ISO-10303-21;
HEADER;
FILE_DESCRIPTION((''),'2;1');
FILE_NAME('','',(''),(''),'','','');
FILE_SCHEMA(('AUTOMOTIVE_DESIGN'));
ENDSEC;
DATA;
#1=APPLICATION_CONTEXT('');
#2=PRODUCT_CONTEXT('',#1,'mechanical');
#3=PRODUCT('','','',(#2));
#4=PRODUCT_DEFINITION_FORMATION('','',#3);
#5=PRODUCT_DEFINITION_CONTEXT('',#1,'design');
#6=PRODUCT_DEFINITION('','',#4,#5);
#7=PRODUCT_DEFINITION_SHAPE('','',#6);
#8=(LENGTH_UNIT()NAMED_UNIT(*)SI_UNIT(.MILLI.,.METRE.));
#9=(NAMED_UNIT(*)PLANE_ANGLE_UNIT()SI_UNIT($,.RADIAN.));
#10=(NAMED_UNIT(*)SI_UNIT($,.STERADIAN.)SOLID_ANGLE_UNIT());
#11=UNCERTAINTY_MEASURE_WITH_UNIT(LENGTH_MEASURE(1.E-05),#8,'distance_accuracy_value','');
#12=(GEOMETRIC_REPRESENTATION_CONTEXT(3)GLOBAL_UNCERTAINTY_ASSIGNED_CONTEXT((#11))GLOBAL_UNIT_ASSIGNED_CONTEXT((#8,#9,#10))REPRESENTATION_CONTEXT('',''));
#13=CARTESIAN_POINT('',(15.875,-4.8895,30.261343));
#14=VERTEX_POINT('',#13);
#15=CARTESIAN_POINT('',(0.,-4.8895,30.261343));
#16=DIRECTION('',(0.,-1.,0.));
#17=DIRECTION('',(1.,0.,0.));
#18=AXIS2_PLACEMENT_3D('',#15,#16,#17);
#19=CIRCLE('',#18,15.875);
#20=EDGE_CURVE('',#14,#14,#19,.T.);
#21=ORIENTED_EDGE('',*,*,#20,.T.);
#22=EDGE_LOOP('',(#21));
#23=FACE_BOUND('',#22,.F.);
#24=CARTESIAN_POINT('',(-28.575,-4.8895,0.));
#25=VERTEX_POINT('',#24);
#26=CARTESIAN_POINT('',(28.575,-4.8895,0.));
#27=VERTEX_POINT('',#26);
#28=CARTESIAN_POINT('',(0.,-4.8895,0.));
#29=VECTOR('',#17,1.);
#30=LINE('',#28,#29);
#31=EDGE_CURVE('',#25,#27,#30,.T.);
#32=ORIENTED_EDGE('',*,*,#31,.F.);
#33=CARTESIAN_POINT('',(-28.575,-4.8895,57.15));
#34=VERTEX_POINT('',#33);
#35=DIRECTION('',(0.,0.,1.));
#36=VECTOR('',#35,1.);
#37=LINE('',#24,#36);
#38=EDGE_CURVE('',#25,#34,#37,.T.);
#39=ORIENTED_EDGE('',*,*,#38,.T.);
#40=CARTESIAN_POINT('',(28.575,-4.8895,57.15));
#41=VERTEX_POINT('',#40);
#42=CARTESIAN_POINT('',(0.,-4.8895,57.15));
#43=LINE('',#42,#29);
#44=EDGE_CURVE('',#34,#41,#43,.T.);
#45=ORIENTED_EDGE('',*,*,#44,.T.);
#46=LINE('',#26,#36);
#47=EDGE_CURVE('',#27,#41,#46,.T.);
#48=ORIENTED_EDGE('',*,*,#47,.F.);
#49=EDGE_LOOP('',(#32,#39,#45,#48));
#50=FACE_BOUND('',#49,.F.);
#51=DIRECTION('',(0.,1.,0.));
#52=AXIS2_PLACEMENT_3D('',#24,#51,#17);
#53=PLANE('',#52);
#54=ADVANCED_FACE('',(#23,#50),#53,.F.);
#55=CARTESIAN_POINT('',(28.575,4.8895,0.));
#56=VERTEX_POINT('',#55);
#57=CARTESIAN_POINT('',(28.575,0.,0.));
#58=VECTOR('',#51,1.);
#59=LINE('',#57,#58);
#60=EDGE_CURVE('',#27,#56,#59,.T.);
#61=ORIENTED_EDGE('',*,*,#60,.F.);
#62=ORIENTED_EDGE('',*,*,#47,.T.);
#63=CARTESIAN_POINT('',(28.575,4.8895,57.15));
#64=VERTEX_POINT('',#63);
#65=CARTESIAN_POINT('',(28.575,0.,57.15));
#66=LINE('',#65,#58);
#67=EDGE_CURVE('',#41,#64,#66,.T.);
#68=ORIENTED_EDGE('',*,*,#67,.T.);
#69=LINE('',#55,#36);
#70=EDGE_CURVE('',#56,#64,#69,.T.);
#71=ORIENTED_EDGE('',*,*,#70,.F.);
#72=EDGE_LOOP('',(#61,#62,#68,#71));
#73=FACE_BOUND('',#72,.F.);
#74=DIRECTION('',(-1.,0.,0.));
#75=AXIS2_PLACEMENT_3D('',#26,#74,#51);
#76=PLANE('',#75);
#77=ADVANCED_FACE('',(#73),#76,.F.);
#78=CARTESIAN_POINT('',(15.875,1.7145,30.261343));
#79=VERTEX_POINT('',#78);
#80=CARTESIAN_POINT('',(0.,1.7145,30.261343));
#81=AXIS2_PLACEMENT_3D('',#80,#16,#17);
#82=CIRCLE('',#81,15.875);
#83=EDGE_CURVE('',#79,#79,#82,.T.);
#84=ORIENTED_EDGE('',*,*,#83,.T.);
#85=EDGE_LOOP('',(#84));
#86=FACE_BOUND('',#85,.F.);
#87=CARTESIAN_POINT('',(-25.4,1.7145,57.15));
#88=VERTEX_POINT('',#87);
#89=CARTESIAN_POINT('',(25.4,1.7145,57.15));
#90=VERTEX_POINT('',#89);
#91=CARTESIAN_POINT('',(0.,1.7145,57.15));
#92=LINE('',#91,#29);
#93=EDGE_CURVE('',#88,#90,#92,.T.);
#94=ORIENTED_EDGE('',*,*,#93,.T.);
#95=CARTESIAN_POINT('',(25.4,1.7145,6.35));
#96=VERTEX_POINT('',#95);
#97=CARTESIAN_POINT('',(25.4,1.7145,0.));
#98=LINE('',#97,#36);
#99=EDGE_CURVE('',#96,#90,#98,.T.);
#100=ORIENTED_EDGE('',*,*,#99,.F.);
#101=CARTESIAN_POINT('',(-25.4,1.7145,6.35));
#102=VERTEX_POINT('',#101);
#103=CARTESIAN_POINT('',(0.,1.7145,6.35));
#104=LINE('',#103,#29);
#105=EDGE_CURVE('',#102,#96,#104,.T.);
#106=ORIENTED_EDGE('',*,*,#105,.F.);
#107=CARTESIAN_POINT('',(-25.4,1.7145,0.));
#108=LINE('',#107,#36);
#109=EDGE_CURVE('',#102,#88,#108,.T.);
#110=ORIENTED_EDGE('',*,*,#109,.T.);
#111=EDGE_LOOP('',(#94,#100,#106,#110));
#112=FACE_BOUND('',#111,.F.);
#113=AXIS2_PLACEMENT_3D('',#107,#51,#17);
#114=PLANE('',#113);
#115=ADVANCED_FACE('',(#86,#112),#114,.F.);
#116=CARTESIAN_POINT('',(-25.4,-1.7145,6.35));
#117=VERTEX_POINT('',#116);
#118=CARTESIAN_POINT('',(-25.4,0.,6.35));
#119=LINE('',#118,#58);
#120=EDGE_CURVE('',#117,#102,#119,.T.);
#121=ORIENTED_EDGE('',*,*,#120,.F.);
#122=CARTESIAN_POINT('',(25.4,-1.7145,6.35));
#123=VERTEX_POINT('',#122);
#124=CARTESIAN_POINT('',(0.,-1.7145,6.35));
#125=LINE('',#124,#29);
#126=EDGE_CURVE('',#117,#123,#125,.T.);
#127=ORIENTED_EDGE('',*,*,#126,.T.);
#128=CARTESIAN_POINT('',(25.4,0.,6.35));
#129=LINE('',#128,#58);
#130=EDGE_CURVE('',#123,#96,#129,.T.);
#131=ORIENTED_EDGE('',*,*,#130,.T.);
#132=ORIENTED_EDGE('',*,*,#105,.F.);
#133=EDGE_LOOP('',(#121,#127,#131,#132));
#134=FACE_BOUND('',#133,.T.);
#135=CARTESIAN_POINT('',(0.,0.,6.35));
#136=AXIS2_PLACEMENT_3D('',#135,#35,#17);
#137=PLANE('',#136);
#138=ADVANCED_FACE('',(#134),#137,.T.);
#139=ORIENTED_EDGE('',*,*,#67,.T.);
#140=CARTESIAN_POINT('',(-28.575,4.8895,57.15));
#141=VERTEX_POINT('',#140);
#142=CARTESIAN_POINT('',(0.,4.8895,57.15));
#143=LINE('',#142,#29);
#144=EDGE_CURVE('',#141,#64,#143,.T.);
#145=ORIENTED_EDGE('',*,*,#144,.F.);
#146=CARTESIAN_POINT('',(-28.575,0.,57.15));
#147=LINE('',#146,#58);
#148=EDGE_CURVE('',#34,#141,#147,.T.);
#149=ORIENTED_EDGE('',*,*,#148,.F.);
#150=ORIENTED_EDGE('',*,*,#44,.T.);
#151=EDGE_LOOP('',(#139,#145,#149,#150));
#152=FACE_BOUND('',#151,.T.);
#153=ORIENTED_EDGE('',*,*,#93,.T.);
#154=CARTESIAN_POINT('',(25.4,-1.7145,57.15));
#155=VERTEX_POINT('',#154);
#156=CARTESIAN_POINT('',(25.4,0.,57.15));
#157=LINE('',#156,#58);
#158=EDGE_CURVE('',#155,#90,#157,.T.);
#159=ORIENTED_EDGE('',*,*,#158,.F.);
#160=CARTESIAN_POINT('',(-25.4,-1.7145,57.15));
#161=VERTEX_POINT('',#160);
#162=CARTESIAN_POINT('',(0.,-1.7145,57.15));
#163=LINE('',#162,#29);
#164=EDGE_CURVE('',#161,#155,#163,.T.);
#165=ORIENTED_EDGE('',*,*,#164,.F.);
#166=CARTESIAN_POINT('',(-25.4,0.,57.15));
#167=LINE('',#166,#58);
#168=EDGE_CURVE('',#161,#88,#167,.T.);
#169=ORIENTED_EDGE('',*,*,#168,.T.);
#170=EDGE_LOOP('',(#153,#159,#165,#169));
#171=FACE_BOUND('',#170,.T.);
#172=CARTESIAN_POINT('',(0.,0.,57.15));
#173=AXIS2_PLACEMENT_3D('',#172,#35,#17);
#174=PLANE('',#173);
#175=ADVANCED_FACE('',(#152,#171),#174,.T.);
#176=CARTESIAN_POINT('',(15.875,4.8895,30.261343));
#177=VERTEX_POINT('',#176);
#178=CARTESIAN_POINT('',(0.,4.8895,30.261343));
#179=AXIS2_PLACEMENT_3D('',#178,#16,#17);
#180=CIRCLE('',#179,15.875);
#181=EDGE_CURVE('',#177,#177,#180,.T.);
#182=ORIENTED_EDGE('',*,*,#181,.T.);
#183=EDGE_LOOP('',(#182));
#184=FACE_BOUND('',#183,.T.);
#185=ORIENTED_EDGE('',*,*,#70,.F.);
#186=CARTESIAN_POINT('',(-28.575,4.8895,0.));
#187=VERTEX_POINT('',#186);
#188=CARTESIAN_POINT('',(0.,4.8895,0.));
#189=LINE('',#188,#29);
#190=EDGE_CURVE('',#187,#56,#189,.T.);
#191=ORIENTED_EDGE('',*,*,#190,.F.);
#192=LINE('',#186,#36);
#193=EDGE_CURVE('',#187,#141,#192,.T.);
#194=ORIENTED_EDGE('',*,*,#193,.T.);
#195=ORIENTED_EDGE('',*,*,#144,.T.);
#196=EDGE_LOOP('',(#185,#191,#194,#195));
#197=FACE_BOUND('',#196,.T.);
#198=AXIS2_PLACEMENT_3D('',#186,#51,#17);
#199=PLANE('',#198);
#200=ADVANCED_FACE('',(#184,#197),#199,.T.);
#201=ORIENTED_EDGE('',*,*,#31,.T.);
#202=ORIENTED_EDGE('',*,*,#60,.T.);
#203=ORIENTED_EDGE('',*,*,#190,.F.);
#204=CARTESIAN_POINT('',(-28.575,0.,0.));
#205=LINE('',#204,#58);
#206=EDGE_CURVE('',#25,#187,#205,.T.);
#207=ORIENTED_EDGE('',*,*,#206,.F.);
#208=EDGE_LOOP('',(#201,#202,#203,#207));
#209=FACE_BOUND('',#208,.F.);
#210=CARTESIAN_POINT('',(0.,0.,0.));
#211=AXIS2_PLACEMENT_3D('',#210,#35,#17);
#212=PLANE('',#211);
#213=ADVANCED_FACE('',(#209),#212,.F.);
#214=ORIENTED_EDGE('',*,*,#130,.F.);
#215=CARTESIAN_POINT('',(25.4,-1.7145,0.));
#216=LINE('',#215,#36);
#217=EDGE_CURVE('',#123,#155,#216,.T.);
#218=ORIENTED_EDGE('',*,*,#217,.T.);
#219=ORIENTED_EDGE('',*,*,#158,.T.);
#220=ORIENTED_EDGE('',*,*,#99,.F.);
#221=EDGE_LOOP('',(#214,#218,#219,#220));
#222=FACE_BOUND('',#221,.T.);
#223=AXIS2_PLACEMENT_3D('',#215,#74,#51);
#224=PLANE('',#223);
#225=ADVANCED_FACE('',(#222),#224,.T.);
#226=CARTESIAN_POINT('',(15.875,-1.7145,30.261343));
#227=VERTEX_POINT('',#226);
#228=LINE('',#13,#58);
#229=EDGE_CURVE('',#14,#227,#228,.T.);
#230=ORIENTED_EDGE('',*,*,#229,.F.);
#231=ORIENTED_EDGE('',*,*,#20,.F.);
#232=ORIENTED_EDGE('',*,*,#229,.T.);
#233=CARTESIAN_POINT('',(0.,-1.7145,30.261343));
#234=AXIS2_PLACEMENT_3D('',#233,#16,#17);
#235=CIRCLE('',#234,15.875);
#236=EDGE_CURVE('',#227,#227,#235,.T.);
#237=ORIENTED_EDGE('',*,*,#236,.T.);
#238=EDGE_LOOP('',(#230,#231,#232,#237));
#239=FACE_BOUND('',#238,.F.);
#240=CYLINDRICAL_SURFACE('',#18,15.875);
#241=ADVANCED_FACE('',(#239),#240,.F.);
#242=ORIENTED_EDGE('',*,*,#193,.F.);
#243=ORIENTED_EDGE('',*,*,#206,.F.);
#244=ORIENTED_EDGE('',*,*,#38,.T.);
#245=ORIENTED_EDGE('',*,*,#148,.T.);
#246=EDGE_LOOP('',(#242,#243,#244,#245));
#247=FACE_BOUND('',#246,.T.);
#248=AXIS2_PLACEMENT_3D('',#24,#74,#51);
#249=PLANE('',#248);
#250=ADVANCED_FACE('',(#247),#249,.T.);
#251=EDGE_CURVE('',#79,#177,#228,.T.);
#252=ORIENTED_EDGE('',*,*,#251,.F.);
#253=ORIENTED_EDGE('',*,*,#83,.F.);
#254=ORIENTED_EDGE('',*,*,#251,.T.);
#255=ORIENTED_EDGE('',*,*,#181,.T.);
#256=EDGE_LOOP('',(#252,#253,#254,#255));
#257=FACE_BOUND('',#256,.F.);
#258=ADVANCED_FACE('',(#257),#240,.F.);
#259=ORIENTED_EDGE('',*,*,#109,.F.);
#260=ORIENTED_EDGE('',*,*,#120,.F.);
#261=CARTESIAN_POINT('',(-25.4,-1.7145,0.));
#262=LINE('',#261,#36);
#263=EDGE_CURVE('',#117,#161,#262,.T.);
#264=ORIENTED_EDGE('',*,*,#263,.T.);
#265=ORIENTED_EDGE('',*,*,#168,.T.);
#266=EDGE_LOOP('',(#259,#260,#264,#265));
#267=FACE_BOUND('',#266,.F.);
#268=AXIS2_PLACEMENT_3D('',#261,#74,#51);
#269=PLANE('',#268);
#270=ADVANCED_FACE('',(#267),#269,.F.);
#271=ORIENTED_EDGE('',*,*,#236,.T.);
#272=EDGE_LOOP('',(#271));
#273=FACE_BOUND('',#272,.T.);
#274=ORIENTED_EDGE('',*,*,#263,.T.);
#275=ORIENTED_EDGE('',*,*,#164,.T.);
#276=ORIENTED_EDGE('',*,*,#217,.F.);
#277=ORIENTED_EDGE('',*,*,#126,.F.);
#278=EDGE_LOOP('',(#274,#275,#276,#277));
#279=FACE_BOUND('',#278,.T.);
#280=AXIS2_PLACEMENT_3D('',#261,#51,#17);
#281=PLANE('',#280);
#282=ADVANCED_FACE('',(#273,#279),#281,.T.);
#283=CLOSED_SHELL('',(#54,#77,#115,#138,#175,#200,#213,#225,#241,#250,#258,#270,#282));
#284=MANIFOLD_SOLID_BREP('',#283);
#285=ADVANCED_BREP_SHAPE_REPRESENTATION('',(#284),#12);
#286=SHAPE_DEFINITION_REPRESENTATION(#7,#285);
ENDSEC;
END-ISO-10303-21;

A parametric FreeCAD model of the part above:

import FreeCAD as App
import Part
import Sketcher
Q = App.Units.Quantity


def add_polygon(sketch, points):
    """Adds a closed chain of lines whose ends are joined by coincident constraints."""
    first, n = sketch.GeometryCount, len(points)
    for a, b in zip(points, points[1:] + points[:1]):
        sketch.addGeometry(Part.LineSegment(App.Vector(*a, 0), App.Vector(*b, 0)), False)
    for i in range(n):
        sketch.addConstraint(Sketcher.Constraint("Coincident", first + i, 2, first + (i + 1) % n, 1))

doc = App.newDocument("Part")
params = doc.addObject("Spreadsheet::Sheet", "Params")
for row, (alias, value) in enumerate([
    ("sketch1_width", "2 in"),
    ("sketch1_width2", "2.25 in"),
    ("sketch1_height", "0.385 in"),
    ("sketch1_height2", "0.135 in"),
    ("pad1_length", "2.25 in"),
    ("sketch2_width", "2 in"),
    ("sketch2_height", "0.135 in"),
    ("pad2_length", "0.25 in"),
    ("sketch3_diameter", "1.25 in"),
], start=1):
    params.set(f"A{row}", alias)
    params.set(f"B{row}", "=" + value)
    params.setAlias(f"B{row}", alias)

body = doc.addObject("PartDesign::Body", "Body")

# Sketch on XY plane
sketch1 = body.newObject("Sketcher::SketchObject", "Sketch")
sketch1.AttachmentSupport = (doc.getObject("XY_Plane"), [""])
sketch1.MapMode = "FlatFace"
add_polygon(sketch1, [(-28.6, 4.9), (-28.6, -4.9), (28.6, -4.9), (28.6, 4.9)])  # lines 0-3
add_polygon(sketch1, [(25.4, -1.7), (-25.4, -1.7), (-25.4, 1.7), (25.4, 1.7)])  # lines 4-7
sketch1.addConstraint([
    Sketcher.Constraint("Vertical", 0),
    Sketcher.Constraint("Horizontal", 1),
    Sketcher.Constraint("Vertical", 2),
    Sketcher.Constraint("Horizontal", 3),
    Sketcher.Constraint("Horizontal", 4),
    Sketcher.Constraint("Vertical", 5),
    Sketcher.Constraint("Horizontal", 6),
    Sketcher.Constraint("Vertical", 7),
    Sketcher.Constraint("Symmetric", 0, 2, 2, 2, -1, 1),
    Sketcher.Constraint("Symmetric", 4, 2, 6, 2, -1, 1),
    Sketcher.Constraint("DistanceX", 4, 2, 4, 1, Q("2 in")),
    Sketcher.Constraint("DistanceX", 1, 1, 1, 2, Q("2.25 in")),
    Sketcher.Constraint("DistanceY", 0, 2, 0, 1, Q("0.385 in")),
    Sketcher.Constraint("DistanceY", 5, 1, 5, 2, Q("0.135 in")),
])
sketch1.setExpression("Constraints[18]", "Params.sketch1_width")
sketch1.setExpression("Constraints[19]", "Params.sketch1_width2")
sketch1.setExpression("Constraints[20]", "Params.sketch1_height")
sketch1.setExpression("Constraints[21]", "Params.sketch1_height2")
pad1 = body.newObject("PartDesign::Pad", "Pad")
pad1.Profile = sketch1
pad1.setExpression("Length", "Params.pad1_length")

# Sketch on XY plane
sketch2 = body.newObject("Sketcher::SketchObject", "Sketch001")
sketch2.AttachmentSupport = (doc.getObject("XY_Plane"), [""])
sketch2.MapMode = "FlatFace"
add_polygon(sketch2, [(-25.4, 1.7), (-25.4, -1.7), (25.4, -1.7), (25.4, 1.7)])  # lines 0-3
sketch2.addConstraint([
    Sketcher.Constraint("Vertical", 0),
    Sketcher.Constraint("Horizontal", 1),
    Sketcher.Constraint("Vertical", 2),
    Sketcher.Constraint("Horizontal", 3),
    Sketcher.Constraint("Symmetric", 0, 2, 2, 2, -1, 1),
    Sketcher.Constraint("DistanceX", 1, 1, 1, 2, Q("2 in")),
    Sketcher.Constraint("DistanceY", 0, 2, 0, 1, Q("0.135 in")),
])
sketch2.setExpression("Constraints[9]", "Params.sketch2_width")
sketch2.setExpression("Constraints[10]", "Params.sketch2_height")
pad2 = body.newObject("PartDesign::Pad", "Pad001")
pad2.Profile = sketch2
pad2.setExpression("Length", "Params.pad2_length")

# Sketch on XZ plane
sketch3 = body.newObject("Sketcher::SketchObject", "Sketch002")
sketch3.AttachmentSupport = (doc.getObject("XZ_Plane"), [""])
sketch3.MapMode = "FlatFace"
sketch3.AttachmentOffset = App.Placement(App.Vector(0, 0, 0.1925 * 25.4), App.Rotation())
sketch3.addGeometry(Part.Circle(App.Vector(0, 30, 0), App.Vector(0, 0, 1), 16), False)
sketch3.addConstraint([
    Sketcher.Constraint("PointOnObject", 0, 3, -2),
    Sketcher.Constraint("Diameter", 0, Q("1.25 in")),
    Sketcher.Constraint("DistanceY", -1, 1, 0, 3, Q("30.261343 mm")),
])
sketch3.setExpression("Constraints[1]", "Params.sketch3_diameter")
pocket1 = body.newObject("PartDesign::Pocket", "Pocket")
pocket1.Profile = sketch3
pocket1.Type = "ThroughAll"

doc.recompute()
